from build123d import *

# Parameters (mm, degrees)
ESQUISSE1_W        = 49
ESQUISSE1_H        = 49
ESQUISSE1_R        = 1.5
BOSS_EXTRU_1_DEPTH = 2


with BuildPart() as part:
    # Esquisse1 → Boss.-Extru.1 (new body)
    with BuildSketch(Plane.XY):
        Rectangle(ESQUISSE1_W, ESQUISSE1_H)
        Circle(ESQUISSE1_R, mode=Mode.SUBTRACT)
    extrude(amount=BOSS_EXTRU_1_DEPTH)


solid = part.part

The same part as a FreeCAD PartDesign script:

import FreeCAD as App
import Part
import Sketcher
from FreeCAD import Vector

doc = App.newDocument("Part")
body = doc.addObject("PartDesign::Body", "Body")

# Sketch on XY plane
sketch1 = body.newObject("Sketcher::SketchObject", "Sketch")
sketch1.AttachmentSupport = (doc.getObject("XY_Plane"), [""])
sketch1.MapMode = "FlatFace"
sketch1.addGeometry(Part.LineSegment(Vector(-24.5, 24.5, 0), Vector(-24.5, -24.5, 0)), False)
sketch1.addGeometry(Part.LineSegment(Vector(-24.5, -24.5, 0), Vector(24.5, -24.5, 0)), False)
sketch1.addGeometry(Part.LineSegment(Vector(24.5, -24.5, 0), Vector(24.5, 24.5, 0)), False)
sketch1.addGeometry(Part.LineSegment(Vector(24.5, 24.5, 0), Vector(-24.5, 24.5, 0)), False)
sketch1.addGeometry(Part.Circle(Vector(0, 0, 0), Vector(0, 0, 1), 1.5), False)
sketch1.addConstraint(Sketcher.Constraint("Coincident", 0, 2, 1, 1))
sketch1.addConstraint(Sketcher.Constraint("Coincident", 1, 2, 2, 1))
sketch1.addConstraint(Sketcher.Constraint("Coincident", 2, 2, 3, 1))
sketch1.addConstraint(Sketcher.Constraint("Coincident", 3, 2, 0, 1))
sketch1.addConstraint(Sketcher.Constraint("Vertical", 0))
sketch1.addConstraint(Sketcher.Constraint("Horizontal", 1))
sketch1.addConstraint(Sketcher.Constraint("Vertical", 2))
sketch1.addConstraint(Sketcher.Constraint("Horizontal", 3))
sketch1.addConstraint(Sketcher.Constraint("Coincident", 4, 3, -1, 1))
sketch1.addConstraint(Sketcher.Constraint("Symmetric", 0, 2, 2, 2, -1, 1))
sketch1.addConstraint(Sketcher.Constraint("Equal", 3, 0))
sketch1.addConstraint(Sketcher.Constraint("Diameter", 4, 3.0))
sketch1.addConstraint(Sketcher.Constraint("DistanceX", 1, 1, 1, 2, 49.0))
pad1 = body.newObject("PartDesign::Pad", "Pad")
pad1.Profile = sketch1
pad1.Length = 2

doc.recompute()
